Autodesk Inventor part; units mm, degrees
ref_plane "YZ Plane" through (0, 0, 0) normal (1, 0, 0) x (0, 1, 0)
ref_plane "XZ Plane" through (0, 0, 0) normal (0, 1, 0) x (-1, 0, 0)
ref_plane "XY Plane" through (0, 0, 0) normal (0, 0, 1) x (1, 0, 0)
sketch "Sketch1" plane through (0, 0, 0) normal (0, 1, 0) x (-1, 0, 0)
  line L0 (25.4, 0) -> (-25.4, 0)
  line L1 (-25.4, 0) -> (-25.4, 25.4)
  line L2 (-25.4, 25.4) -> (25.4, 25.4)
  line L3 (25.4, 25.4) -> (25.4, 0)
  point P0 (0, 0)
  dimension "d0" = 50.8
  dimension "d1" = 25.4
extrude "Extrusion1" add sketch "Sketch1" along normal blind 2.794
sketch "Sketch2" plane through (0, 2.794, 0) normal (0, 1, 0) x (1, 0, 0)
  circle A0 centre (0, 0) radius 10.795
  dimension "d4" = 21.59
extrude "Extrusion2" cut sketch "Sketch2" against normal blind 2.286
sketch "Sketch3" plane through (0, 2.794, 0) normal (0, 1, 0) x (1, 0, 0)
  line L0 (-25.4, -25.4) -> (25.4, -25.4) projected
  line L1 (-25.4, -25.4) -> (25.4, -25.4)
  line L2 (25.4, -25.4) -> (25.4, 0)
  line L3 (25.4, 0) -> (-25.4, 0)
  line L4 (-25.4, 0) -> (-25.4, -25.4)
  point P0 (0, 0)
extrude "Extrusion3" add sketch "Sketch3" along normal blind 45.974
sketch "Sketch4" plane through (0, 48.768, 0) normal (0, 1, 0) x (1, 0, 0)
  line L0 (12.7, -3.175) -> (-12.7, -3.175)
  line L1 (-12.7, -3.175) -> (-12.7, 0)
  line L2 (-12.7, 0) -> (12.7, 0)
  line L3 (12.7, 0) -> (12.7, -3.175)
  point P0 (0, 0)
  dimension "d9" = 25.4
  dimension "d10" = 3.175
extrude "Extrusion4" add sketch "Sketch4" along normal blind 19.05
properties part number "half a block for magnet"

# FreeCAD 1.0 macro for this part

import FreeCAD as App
import Part
import Sketcher

V = App.Vector
Q = App.Units.Quantity


def add_polygon(sketch, points):
    """Adds a closed chain of lines whose ends are joined by coincident constraints."""
    first, n = sketch.GeometryCount, len(points)
    for a, b in zip(points, points[1:] + points[:1]):
        sketch.addGeometry(Part.LineSegment(App.Vector(*a, 0), App.Vector(*b, 0)), False)
    for i in range(n):
        sketch.addConstraint(Sketcher.Constraint("Coincident", first + i, 2, first + (i + 1) % n, 1))

doc = App.newDocument("Part")
body = doc.addObject("PartDesign::Body", "Body")

# Sketch on XZ plane
sketch1 = body.newObject("Sketcher::SketchObject", "Sketch")
sketch1.AttachmentSupport = (doc.getObject("XZ_Plane"), [""])
sketch1.MapMode = "FlatFace"
add_polygon(sketch1, [(25.4, 0), (-25.4, 0), (-25.4, 25.4), (25.4, 25.4)])  # lines 0-3
sketch1.addConstraint([
    Sketcher.Constraint("Horizontal", 0),
    Sketcher.Constraint("Vertical", 1),
    Sketcher.Constraint("Horizontal", 2),
    Sketcher.Constraint("Vertical", 3),
    Sketcher.Constraint("Symmetric", 0, 2, 3, 2, -1, 1),
    Sketcher.Constraint("DistanceX", 0, 2, 0, 1, Q("2 in")),
    Sketcher.Constraint("DistanceY", 1, 1, 1, 2, Q("1 in")),
])
pad1 = body.newObject("PartDesign::Pad", "Pad")
pad1.Profile = sketch1
pad1.Length = Q("0.11 in")
pad1.Reversed = True

# Sketch on XZ plane
sketch2 = body.newObject("Sketcher::SketchObject", "Sketch001")
sketch2.AttachmentSupport = (doc.getObject("XZ_Plane"), [""])
sketch2.MapMode = "FlatFace"
sketch2.AttachmentOffset = App.Placement(V(0, 0, -0.11 * 25.4), App.Rotation())
sketch2.addGeometry(Part.Circle(V(0, 0, 0), V(0, 0, 1), 10.795), False)
sketch2.addConstraint([
    Sketcher.Constraint("Coincident", 0, 3, -1, 1),
    Sketcher.Constraint("Diameter", 0, Q("0.85 in")),
])
pocket1 = body.newObject("PartDesign::Pocket", "Pocket")
pocket1.Profile = sketch2
pocket1.Length = Q("0.09 in")
pocket1.Reversed = True

# Sketch on XZ plane
sketch3 = body.newObject("Sketcher::SketchObject", "Sketch002")
sketch3.AttachmentSupport = (doc.getObject("XZ_Plane"), [""])
sketch3.MapMode = "FlatFace"
sketch3.AttachmentOffset = App.Placement(V(0, 0, -0.11 * 25.4), App.Rotation())
add_polygon(sketch3, [(-25.4, 0), (-25.4, 25.4), (25.4, 25.4), (25.4, 0)])  # lines 0-3
sketch3.addConstraint([
    Sketcher.Constraint("Vertical", 0),
    Sketcher.Constraint("Horizontal", 1),
    Sketcher.Constraint("Vertical", 2),
    Sketcher.Constraint("Horizontal", 3),
    Sketcher.Constraint("Symmetric", 2, 2, 3, 2, -1, 1),
    Sketcher.Constraint("DistanceX", 1, 1, 1, 2, Q("2 in")),
    Sketcher.Constraint("DistanceY", 0, 1, 0, 2, Q("1 in")),
])
pad2 = body.newObject("PartDesign::Pad", "Pad001")
pad2.Profile = sketch3
pad2.Length = Q("1.81 in")
pad2.Reversed = True

# Sketch on XZ plane
sketch4 = body.newObject("Sketcher::SketchObject", "Sketch003")
sketch4.AttachmentSupport = (doc.getObject("XZ_Plane"), [""])
sketch4.MapMode = "FlatFace"
sketch4.AttachmentOffset = App.Placement(V(0, 0, -1.92 * 25.4), App.Rotation())
add_polygon(sketch4, [(-12.7, 3.175), (12.7, 3.175), (12.7, 0), (-12.7, 0)])  # lines 0-3
sketch4.addConstraint([
    Sketcher.Constraint("Horizontal", 0),
    Sketcher.Constraint("Vertical", 1),
    Sketcher.Constraint("Horizontal", 2),
    Sketcher.Constraint("Vertical", 3),
    Sketcher.Constraint("Symmetric", 1, 2, 2, 2, -1, 1),
    Sketcher.Constraint("DistanceX", 0, 1, 0, 2, Q("1 in")),
    Sketcher.Constraint("DistanceY", 1, 2, 1, 1, Q("0.125 in")),
])
pad3 = body.newObject("PartDesign::Pad", "Pad002")
pad3.Profile = sketch4
pad3.Length = Q("0.75 in")
pad3.Reversed = True

doc.recompute()
